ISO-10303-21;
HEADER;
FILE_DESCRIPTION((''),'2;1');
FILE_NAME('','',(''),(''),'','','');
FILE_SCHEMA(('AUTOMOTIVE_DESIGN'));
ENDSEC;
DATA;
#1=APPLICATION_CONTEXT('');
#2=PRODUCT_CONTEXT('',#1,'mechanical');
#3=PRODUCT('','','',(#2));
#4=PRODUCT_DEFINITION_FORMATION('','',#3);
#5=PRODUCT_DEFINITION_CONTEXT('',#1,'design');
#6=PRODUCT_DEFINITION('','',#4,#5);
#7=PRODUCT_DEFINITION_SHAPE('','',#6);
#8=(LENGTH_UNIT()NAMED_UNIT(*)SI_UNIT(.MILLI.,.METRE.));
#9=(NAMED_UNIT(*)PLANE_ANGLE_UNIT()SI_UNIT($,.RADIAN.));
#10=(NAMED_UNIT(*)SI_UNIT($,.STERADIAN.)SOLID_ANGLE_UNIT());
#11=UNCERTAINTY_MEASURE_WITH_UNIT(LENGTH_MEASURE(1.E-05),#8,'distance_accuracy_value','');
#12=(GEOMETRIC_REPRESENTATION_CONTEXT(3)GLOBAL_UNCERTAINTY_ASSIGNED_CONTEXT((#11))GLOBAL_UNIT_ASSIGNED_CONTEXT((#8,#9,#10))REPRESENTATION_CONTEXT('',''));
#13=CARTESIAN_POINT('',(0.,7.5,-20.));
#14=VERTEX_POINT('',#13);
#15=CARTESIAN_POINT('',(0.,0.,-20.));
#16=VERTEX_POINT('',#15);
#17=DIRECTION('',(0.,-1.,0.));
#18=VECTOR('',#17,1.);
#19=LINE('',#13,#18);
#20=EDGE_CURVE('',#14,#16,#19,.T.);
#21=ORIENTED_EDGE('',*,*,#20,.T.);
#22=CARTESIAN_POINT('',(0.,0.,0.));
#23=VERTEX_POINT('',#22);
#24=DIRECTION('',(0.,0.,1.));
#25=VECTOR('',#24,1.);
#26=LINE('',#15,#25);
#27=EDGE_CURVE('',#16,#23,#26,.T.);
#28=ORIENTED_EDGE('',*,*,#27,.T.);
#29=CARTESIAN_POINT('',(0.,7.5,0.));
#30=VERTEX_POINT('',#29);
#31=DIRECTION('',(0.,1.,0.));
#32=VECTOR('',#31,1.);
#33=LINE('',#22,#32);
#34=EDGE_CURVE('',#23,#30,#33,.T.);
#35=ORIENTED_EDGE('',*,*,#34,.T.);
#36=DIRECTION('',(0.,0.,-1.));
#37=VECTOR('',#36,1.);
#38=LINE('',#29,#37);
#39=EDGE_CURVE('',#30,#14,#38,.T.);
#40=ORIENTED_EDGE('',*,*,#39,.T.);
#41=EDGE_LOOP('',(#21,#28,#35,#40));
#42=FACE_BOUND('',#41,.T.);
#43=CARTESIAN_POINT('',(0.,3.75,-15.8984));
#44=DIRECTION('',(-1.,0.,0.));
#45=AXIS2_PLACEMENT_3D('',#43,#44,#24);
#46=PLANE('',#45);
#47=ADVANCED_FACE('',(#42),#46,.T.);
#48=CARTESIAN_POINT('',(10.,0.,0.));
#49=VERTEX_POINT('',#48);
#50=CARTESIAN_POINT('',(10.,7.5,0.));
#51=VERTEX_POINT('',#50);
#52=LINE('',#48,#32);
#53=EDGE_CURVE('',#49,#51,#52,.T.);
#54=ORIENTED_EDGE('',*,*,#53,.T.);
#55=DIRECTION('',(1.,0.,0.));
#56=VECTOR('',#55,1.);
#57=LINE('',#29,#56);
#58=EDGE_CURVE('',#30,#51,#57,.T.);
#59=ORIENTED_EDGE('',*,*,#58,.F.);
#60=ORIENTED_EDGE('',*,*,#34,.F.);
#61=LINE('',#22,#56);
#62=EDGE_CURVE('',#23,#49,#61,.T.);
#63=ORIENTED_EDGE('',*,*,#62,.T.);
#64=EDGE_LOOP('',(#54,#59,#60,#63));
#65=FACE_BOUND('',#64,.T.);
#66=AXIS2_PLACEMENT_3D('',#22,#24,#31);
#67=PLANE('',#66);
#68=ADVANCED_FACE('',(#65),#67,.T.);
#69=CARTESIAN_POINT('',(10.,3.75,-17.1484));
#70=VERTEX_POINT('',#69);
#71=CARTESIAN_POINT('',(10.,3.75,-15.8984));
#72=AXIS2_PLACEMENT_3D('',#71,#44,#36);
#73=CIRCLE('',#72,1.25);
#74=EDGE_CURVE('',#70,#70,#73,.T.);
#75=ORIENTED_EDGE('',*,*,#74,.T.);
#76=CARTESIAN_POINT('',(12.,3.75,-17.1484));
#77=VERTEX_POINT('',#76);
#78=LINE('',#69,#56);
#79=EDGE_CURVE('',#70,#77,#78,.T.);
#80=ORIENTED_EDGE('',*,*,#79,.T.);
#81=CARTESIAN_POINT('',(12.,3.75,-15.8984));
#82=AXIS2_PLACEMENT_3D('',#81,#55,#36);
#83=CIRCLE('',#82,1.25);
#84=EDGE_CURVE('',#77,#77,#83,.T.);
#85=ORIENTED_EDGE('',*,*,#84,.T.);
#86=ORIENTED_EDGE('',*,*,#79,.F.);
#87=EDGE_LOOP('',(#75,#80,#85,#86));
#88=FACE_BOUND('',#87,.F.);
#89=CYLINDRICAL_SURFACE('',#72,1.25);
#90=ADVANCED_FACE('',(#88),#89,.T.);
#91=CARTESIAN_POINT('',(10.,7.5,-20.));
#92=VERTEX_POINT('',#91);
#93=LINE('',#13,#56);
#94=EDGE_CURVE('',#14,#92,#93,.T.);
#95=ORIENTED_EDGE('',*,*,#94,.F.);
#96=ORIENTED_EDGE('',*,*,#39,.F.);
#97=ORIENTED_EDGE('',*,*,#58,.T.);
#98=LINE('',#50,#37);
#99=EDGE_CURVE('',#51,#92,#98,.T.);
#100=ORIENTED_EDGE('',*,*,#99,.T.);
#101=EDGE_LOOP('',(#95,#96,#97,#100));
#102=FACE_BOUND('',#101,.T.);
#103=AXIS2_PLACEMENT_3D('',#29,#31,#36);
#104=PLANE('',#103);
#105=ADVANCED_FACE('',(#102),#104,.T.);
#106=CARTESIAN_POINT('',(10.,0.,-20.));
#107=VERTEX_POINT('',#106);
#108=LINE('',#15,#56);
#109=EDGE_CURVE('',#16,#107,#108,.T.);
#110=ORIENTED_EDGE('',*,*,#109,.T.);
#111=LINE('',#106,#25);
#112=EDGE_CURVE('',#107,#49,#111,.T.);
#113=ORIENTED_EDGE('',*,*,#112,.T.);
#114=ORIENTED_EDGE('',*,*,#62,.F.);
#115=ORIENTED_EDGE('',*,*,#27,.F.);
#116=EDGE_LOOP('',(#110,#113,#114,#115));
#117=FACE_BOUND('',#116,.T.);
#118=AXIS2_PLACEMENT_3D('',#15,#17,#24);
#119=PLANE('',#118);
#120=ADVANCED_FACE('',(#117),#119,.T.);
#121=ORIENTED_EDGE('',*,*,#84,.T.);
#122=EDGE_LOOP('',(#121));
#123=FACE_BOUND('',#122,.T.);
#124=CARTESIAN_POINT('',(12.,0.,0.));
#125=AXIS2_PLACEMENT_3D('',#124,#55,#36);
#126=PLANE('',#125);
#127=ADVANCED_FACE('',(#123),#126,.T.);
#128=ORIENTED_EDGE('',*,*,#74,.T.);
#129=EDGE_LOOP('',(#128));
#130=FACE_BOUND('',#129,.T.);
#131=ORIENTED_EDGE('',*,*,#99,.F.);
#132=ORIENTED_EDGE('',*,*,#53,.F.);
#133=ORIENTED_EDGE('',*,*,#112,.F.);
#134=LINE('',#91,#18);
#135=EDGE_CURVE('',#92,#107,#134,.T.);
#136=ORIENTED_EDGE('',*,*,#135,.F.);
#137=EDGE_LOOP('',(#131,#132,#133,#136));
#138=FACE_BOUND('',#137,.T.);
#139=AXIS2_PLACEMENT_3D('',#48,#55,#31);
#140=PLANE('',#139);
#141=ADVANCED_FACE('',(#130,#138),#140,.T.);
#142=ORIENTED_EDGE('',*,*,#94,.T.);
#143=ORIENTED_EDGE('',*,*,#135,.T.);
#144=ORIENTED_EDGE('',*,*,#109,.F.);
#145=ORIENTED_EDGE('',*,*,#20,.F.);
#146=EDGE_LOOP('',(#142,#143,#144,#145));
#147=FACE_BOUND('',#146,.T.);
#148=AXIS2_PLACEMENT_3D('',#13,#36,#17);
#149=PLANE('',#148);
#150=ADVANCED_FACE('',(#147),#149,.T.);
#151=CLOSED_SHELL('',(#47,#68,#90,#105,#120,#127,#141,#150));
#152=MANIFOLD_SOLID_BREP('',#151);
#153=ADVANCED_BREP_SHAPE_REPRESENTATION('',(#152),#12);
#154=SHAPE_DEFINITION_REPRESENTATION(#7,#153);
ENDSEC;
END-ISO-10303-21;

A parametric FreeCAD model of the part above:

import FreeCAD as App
import Part
import Sketcher

V = App.Vector
Q = App.Units.Quantity


def add_polygon(sketch, points):
    """Adds a closed chain of lines whose ends are joined by coincident constraints."""
    first, n = sketch.GeometryCount, len(points)
    for a, b in zip(points, points[1:] + points[:1]):
        sketch.addGeometry(Part.LineSegment(App.Vector(*a, 0), App.Vector(*b, 0)), False)
    for i in range(n):
        sketch.addConstraint(Sketcher.Constraint("Coincident", first + i, 2, first + (i + 1) % n, 1))

doc = App.newDocument("Part")
params = doc.addObject("Spreadsheet::Sheet", "Params")
for row, (alias, value) in enumerate([
    ("sketch1_diameter", "2.5 mm"),
    ("sketch1_height", "20 mm"),
    ("sketch1_width", "7.5 mm"),
    ("pad1_length", "10 mm"),
    ("sketch2_diameter", "2.5 mm"),
    ("pad2_length", "2 mm"),
    ("sketch3_diameter", "2.5 mm"),
    ("pad3_length", "10 mm"),
], start=1):
    params.set(f"A{row}", alias)
    params.set(f"B{row}", "=" + value)
    params.setAlias(f"B{row}", alias)

body = doc.addObject("PartDesign::Body", "Body")
body.AllowCompound = True

# Sketch on YZ plane
sketch1 = body.newObject("Sketcher::SketchObject", "Sketch")
sketch1.AttachmentSupport = (doc.getObject("YZ_Plane"), [""])
sketch1.MapMode = "FlatFace"
add_polygon(sketch1, [(7.5, 0), (0, 0), (0, -20), (7.5, -20)])  # lines 0-3
sketch1.addGeometry(Part.Circle(V(3.8, -15.9, 0), V(0, 0, 1), 1.2), False)  # 4
sketch1.addConstraint([
    Sketcher.Constraint("Horizontal", 0),
    Sketcher.Constraint("Vertical", 1),
    Sketcher.Constraint("Horizontal", 2),
    Sketcher.Constraint("Vertical", 3),
    Sketcher.Constraint("Coincident", 0, 2, -1, 1),
    Sketcher.Constraint("Diameter", 4, Q("2.5 mm")),
    Sketcher.Constraint("DistanceY", 1, 2, 1, 1, Q("20 mm")),
    Sketcher.Constraint("DistanceX", 0, 2, 0, 1, Q("7.5 mm")),
    Sketcher.Constraint("DistanceX", -1, 1, 4, 3, Q("3.75 mm")),
    Sketcher.Constraint("DistanceY", 4, 3, -1, 1, Q("15.8984 mm")),
])
sketch1.setExpression("Constraints[9]", "Params.sketch1_diameter")
sketch1.setExpression("Constraints[10]", "Params.sketch1_height")
sketch1.setExpression("Constraints[11]", "Params.sketch1_width")
pad1 = body.newObject("PartDesign::Pad", "Pad")
pad1.Profile = sketch1
pad1.setExpression("Length", "Params.pad1_length")

# Sketch on YZ plane
sketch2 = body.newObject("Sketcher::SketchObject", "Sketch001")
sketch2.AttachmentSupport = (doc.getObject("YZ_Plane"), [""])
sketch2.MapMode = "FlatFace"
sketch2.AttachmentOffset = App.Placement(V(0, 0, 10), App.Rotation())
sketch2.addGeometry(Part.Circle(V(3.8, -15.9, 0), V(0, 0, 1), 1.2), False)
sketch2.addConstraint([
    Sketcher.Constraint("Diameter", 0, Q("2.5 mm")),
    Sketcher.Constraint("DistanceX", -1, 1, 0, 3, Q("3.75 mm")),
    Sketcher.Constraint("DistanceY", 0, 3, -1, 1, Q("15.8984 mm")),
])
sketch2.setExpression("Constraints[0]", "Params.sketch2_diameter")
pad2 = body.newObject("PartDesign::Pad", "Pad001")
pad2.Profile = sketch2
pad2.setExpression("Length", "Params.pad2_length")

# Sketch on YZ plane
sketch3 = body.newObject("Sketcher::SketchObject", "Sketch002")
sketch3.AttachmentSupport = (doc.getObject("YZ_Plane"), [""])
sketch3.MapMode = "FlatFace"
sketch3.AttachmentOffset = App.Placement(V(0, 0, 10), App.Rotation())
sketch3.addGeometry(Part.Circle(V(3.8, -15.9, 0), V(0, 0, 1), 1.2), False)
sketch3.addConstraint([
    Sketcher.Constraint("Diameter", 0, Q("2.5 mm")),
    Sketcher.Constraint("DistanceX", -1, 1, 0, 3, Q("3.75 mm")),
    Sketcher.Constraint("DistanceY", 0, 3, -1, 1, Q("15.8984 mm")),
])
sketch3.setExpression("Constraints[0]", "Params.sketch3_diameter")
pad3 = body.newObject("PartDesign::Pad", "Pad002")
pad3.Profile = sketch3
pad3.setExpression("Length", "Params.pad3_length")
pad3.Reversed = True

doc.recompute()
